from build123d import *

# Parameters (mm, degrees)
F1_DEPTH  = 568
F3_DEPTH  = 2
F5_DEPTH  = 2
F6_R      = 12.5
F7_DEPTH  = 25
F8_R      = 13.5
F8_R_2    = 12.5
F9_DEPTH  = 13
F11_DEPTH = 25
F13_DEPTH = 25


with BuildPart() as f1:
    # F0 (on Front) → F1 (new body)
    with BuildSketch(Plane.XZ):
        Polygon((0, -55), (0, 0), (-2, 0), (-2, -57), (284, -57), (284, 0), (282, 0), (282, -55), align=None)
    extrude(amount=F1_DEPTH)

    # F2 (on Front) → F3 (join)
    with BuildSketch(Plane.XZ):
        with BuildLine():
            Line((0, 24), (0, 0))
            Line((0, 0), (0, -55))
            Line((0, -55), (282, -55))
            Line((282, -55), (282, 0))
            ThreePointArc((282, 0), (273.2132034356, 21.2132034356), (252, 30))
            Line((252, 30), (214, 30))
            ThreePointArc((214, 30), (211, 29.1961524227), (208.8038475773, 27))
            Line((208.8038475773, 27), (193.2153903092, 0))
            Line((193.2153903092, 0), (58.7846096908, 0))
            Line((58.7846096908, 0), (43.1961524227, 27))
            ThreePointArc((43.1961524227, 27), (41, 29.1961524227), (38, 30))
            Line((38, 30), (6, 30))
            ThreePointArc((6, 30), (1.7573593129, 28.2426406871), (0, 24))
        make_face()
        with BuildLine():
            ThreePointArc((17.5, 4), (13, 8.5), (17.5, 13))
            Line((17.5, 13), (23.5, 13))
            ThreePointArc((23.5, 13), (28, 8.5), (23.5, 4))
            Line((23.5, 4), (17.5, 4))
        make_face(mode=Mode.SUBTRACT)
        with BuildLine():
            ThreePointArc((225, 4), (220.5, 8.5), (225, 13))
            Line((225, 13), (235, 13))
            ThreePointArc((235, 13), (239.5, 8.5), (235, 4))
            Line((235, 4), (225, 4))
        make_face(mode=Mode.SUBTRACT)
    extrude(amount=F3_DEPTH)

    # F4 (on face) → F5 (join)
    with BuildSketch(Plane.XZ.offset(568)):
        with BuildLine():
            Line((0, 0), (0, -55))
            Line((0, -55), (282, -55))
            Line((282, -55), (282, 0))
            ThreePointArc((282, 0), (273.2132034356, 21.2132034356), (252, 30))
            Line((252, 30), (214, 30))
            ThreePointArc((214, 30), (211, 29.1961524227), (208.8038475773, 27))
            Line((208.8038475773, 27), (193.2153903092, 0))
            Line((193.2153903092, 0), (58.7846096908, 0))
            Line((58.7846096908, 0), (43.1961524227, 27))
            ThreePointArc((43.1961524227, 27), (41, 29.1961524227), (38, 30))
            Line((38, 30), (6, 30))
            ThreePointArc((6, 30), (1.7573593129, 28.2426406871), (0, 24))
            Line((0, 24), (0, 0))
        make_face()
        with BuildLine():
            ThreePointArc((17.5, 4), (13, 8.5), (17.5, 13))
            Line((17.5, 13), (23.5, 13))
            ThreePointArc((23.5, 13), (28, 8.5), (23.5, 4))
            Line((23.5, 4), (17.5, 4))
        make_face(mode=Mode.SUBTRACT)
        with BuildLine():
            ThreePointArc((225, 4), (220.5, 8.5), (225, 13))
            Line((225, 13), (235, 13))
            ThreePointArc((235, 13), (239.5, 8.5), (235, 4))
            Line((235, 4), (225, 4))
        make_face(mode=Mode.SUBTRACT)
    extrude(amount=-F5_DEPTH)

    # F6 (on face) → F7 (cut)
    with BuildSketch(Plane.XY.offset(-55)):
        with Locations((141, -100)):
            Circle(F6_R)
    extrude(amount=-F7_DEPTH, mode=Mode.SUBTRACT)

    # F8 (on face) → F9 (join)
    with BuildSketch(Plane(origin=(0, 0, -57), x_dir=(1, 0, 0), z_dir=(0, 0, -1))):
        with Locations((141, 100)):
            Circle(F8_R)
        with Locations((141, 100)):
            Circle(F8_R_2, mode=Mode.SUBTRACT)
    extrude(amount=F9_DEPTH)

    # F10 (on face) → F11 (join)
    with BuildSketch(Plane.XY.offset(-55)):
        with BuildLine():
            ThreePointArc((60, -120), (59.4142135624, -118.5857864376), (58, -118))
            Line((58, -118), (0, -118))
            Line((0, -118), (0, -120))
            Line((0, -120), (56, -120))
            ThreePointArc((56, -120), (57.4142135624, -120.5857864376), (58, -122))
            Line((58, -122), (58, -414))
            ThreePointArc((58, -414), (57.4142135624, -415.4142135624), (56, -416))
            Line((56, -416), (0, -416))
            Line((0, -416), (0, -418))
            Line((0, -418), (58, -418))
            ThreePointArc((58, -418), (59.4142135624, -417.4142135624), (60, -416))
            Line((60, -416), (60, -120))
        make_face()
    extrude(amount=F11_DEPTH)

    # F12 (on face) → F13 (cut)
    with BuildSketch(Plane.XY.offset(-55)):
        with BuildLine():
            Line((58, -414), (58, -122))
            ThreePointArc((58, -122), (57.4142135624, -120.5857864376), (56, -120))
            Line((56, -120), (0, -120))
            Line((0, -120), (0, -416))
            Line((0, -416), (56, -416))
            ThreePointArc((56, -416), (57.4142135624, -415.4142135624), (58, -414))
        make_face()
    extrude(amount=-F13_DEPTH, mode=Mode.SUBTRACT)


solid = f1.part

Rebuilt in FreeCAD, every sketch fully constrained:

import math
import FreeCAD as App
import Part
import Sketcher
from FreeCAD import Vector
Q = App.Units.Quantity

doc = App.newDocument("Part")
body = doc.addObject("PartDesign::Body", "Body")

# Sketch on XZ plane
sketch1 = body.newObject("Sketcher::SketchObject", "Sketch")
sketch1.AttachmentSupport = (doc.getObject("XZ_Plane"), [""])
sketch1.MapMode = "FlatFace"
sketch1.addGeometry(Part.LineSegment(Vector(0, -55, 0), Vector(0, 0, 0)), False)
sketch1.addGeometry(Part.LineSegment(Vector(0, 0, 0), Vector(-2, 0, 0)), False)
sketch1.addGeometry(Part.LineSegment(Vector(-2, 0, 0), Vector(-2, -57, 0)), False)
sketch1.addGeometry(Part.LineSegment(Vector(-2, -57, 0), Vector(284, -57, 0)), False)
sketch1.addGeometry(Part.LineSegment(Vector(284, -57, 0), Vector(284, 0, 0)), False)
sketch1.addGeometry(Part.LineSegment(Vector(284, 0, 0), Vector(282, 0, 0)), False)
sketch1.addGeometry(Part.LineSegment(Vector(282, 0, 0), Vector(282, -55, 0)), False)
sketch1.addGeometry(Part.LineSegment(Vector(282, -55, 0), Vector(0, -55, 0)), False)
sketch1.addConstraint(Sketcher.Constraint("Coincident", 0, 2, 1, 1))
sketch1.addConstraint(Sketcher.Constraint("Coincident", 1, 2, 2, 1))
sketch1.addConstraint(Sketcher.Constraint("Coincident", 2, 2, 3, 1))
sketch1.addConstraint(Sketcher.Constraint("Coincident", 3, 2, 4, 1))
sketch1.addConstraint(Sketcher.Constraint("Coincident", 4, 2, 5, 1))
sketch1.addConstraint(Sketcher.Constraint("Coincident", 5, 2, 6, 1))
sketch1.addConstraint(Sketcher.Constraint("Coincident", 6, 2, 7, 1))
sketch1.addConstraint(Sketcher.Constraint("Coincident", 7, 2, 0, 1))
sketch1.addConstraint(Sketcher.Constraint("Vertical", 0))
sketch1.addConstraint(Sketcher.Constraint("Horizontal", 1))
sketch1.addConstraint(Sketcher.Constraint("Vertical", 2))
sketch1.addConstraint(Sketcher.Constraint("Horizontal", 3))
sketch1.addConstraint(Sketcher.Constraint("Vertical", 4))
sketch1.addConstraint(Sketcher.Constraint("Horizontal", 5))
sketch1.addConstraint(Sketcher.Constraint("Vertical", 6))
sketch1.addConstraint(Sketcher.Constraint("Horizontal", 7))
sketch1.addConstraint(Sketcher.Constraint("Coincident", 0, 2, -1, 1))
sketch1.addConstraint(Sketcher.Constraint("PointOnObject", 4, 2, -1))
sketch1.addConstraint(Sketcher.Constraint("Equal", 1, 5))
sketch1.addConstraint(Sketcher.Constraint("DistanceX", 1, 2, 1, 1, 2.0))
sketch1.addConstraint(Sketcher.Constraint("DistanceX", 3, 1, 3, 2, 286.0))
sketch1.addConstraint(Sketcher.Constraint("DistanceY", 0, 1, 0, 2, 55.0))
sketch1.addConstraint(Sketcher.Constraint("DistanceY", 2, 2, 2, 1, 57.0))
pad1 = body.newObject("PartDesign::Pad", "Pad")
pad1.Profile = sketch1
pad1.Length = 568

# Sketch on XZ plane
sketch2 = body.newObject("Sketcher::SketchObject", "Sketch001")
sketch2.AttachmentSupport = (doc.getObject("XZ_Plane"), [""])
sketch2.MapMode = "FlatFace"
sketch2.addGeometry(Part.LineSegment(Vector(0, 24, 0), Vector(0, -55, 0)), False)
sketch2.addGeometry(Part.LineSegment(Vector(0, -55, 0), Vector(282, -55, 0)), False)
sketch2.addGeometry(Part.LineSegment(Vector(282, -55, 0), Vector(282, 0, 0)), False)
sketch2.addGeometry(Part.ArcOfCircle(Part.Circle(Vector(252, 0, 0), Vector(0, 0, 1), 30), math.radians(0), math.radians(90)), False)
sketch2.addGeometry(Part.LineSegment(Vector(252, 30, 0), Vector(214, 30, 0)), False)
sketch2.addGeometry(Part.ArcOfCircle(Part.Circle(Vector(214, 24, 0), Vector(0, 0, 1), 6), math.radians(90), math.radians(150)), False)
sketch2.addGeometry(Part.LineSegment(Vector(208.8, 27, 0), Vector(193.2, 0, 0)), False)
sketch2.addGeometry(Part.LineSegment(Vector(193.2, 0, 0), Vector(58.8, 0, 0)), False)
sketch2.addGeometry(Part.LineSegment(Vector(58.8, 0, 0), Vector(43.2, 27, 0)), False)
sketch2.addGeometry(Part.ArcOfCircle(Part.Circle(Vector(38, 24, 0), Vector(0, 0, 1), 6), math.radians(30), math.radians(90)), False)
sketch2.addGeometry(Part.LineSegment(Vector(38, 30, 0), Vector(6, 30, 0)), False)
sketch2.addGeometry(Part.ArcOfCircle(Part.Circle(Vector(6, 24, 0), Vector(0, 0, 1), 6), math.radians(90), math.radians(180)), False)
sketch2.addGeometry(Part.LineSegment(Vector(23.5, 4, 0), Vector(17.5, 4, 0)), False)
sketch2.addGeometry(Part.ArcOfCircle(Part.Circle(Vector(17.5, 8.5, 0), Vector(0, 0, 1), 4.5), math.radians(90), math.radians(270)), False)
sketch2.addGeometry(Part.LineSegment(Vector(17.5, 13, 0), Vector(23.5, 13, 0)), False)
sketch2.addGeometry(Part.ArcOfCircle(Part.Circle(Vector(23.5, 8.5, 0), Vector(0, 0, 1), 4.5), math.radians(-90), math.radians(90)), False)
sketch2.addGeometry(Part.LineSegment(Vector(235, 4, 0), Vector(225, 4, 0)), False)
sketch2.addGeometry(Part.ArcOfCircle(Part.Circle(Vector(225, 8.5, 0), Vector(0, 0, 1), 4.5), math.radians(90), math.radians(270)), False)
sketch2.addGeometry(Part.LineSegment(Vector(225, 13, 0), Vector(235, 13, 0)), False)
sketch2.addGeometry(Part.ArcOfCircle(Part.Circle(Vector(235, 8.5, 0), Vector(0, 0, 1), 4.5), math.radians(-90), math.radians(90)), False)
sketch2.addConstraint(Sketcher.Constraint("Coincident", 0, 2, 1, 1))
sketch2.addConstraint(Sketcher.Constraint("Coincident", 1, 2, 2, 1))
sketch2.addConstraint(Sketcher.Constraint("Tangent", 2, 2, 3, 1))
sketch2.addConstraint(Sketcher.Constraint("Tangent", 3, 2, 4, 1))
sketch2.addConstraint(Sketcher.Constraint("Tangent", 4, 2, 5, 1))
sketch2.addConstraint(Sketcher.Constraint("Tangent", 5, 2, 6, 1))
sketch2.addConstraint(Sketcher.Constraint("Coincident", 6, 2, 7, 1))
sketch2.addConstraint(Sketcher.Constraint("Coincident", 7, 2, 8, 1))
sketch2.addConstraint(Sketcher.Constraint("Tangent", 8, 2, 9, 1))
sketch2.addConstraint(Sketcher.Constraint("Tangent", 9, 2, 10, 1))
sketch2.addConstraint(Sketcher.Constraint("Tangent", 10, 2, 11, 1))
sketch2.addConstraint(Sketcher.Constraint("Tangent", 11, 2, 0, 1))
sketch2.addConstraint(Sketcher.Constraint("Tangent", 12, 2, 13, 2))
sketch2.addConstraint(Sketcher.Constraint("Tangent", 13, 1, 14, 1))
sketch2.addConstraint(Sketcher.Constraint("Tangent", 14, 2, 15, 2))
sketch2.addConstraint(Sketcher.Constraint("Tangent", 15, 1, 12, 1))
sketch2.addConstraint(Sketcher.Constraint("Tangent", 16, 2, 17, 2))
sketch2.addConstraint(Sketcher.Constraint("Tangent", 17, 1, 18, 1))
sketch2.addConstraint(Sketcher.Constraint("Tangent", 18, 2, 19, 2))
sketch2.addConstraint(Sketcher.Constraint("Tangent", 19, 1, 16, 1))
sketch2.addConstraint(Sketcher.Constraint("Vertical", 0))
sketch2.addConstraint(Sketcher.Constraint("Horizontal", 1))
sketch2.addConstraint(Sketcher.Constraint("Vertical", 2))
sketch2.addConstraint(Sketcher.Constraint("Horizontal", 4))
sketch2.addConstraint(Sketcher.Constraint("Horizontal", 7))
sketch2.addConstraint(Sketcher.Constraint("Horizontal", 10))
sketch2.addConstraint(Sketcher.Constraint("Horizontal", 12))
sketch2.addConstraint(Sketcher.Constraint("Horizontal", 14))
sketch2.addConstraint(Sketcher.Constraint("Horizontal", 16))
sketch2.addConstraint(Sketcher.Constraint("Horizontal", 18))
sketch2.addConstraint(Sketcher.Constraint("Equal", 5, 9))
sketch2.addConstraint(Sketcher.Constraint("Equal", 9, 11))
sketch2.addConstraint(Sketcher.Constraint("Equal", 15, 17))
sketch2.addConstraint(Sketcher.Constraint("PointOnObject", 3, 3, -1))
sketch2.addConstraint(Sketcher.Constraint("PointOnObject", 0, 2, -2))
sketch2.addConstraint(Sketcher.Constraint("PointOnObject", 6, 2, -1))
sketch2.addConstraint(Sketcher.Constraint("Horizontal", 5, 3, 9, 3))
sketch2.addConstraint(Sketcher.Constraint("Horizontal", 15, 3, 17, 3))
sketch2.addConstraint(Sketcher.Constraint("Horizontal", 5, 2, 8, 2))
sketch2.addConstraint(Sketcher.Constraint("Radius", 3, 30.0))
sketch2.addConstraint(Sketcher.Constraint("Radius", 5, 6.0))
sketch2.addConstraint(Sketcher.Constraint("Radius", 13, 4.5))
sketch2.addConstraint(Sketcher.Constraint("DistanceX", 1, 1, 1, 2, 282.0))
sketch2.addConstraint(Sketcher.Constraint("DistanceX", 4, 2, 4, 1, 38.0))
sketch2.addConstraint(Sketcher.Constraint("DistanceX", 10, 2, 10, 1, 32.0))
sketch2.addConstraint(Sketcher.Constraint("DistanceX", 12, 2, 12, 1, 6.0))
sketch2.addConstraint(Sketcher.Constraint("DistanceX", 16, 2, 16, 1, 10.0))
sketch2.addConstraint(Sketcher.Constraint("DistanceY", 0, 2, 0, 1, 79.0))
sketch2.addConstraint(Sketcher.Constraint("Angle", 6, Q("-120 deg")))
sketch2.addConstraint(Sketcher.Constraint("DistanceX", -1, 1, 17, 3, 225.0))
sketch2.addConstraint(Sketcher.Constraint("DistanceY", -1, 1, 12, 2, 4.0))
sketch2.addConstraint(Sketcher.Constraint("DistanceX", -1, 1, 13, 3, 17.5))
pad2 = body.newObject("PartDesign::Pad", "Pad001")
pad2.Profile = sketch2
pad2.Length = 2

# Sketch on XZ plane
sketch3 = body.newObject("Sketcher::SketchObject", "Sketch002")
sketch3.AttachmentSupport = (doc.getObject("XZ_Plane"), [""])
sketch3.MapMode = "FlatFace"
sketch3.AttachmentOffset = App.Placement(Vector(0, 0, 568), App.Rotation())
sketch3.addGeometry(Part.LineSegment(Vector(0, -55, 0), Vector(282, -55, 0)), False)
sketch3.addGeometry(Part.LineSegment(Vector(282, -55, 0), Vector(282, 0, 0)), False)
sketch3.addGeometry(Part.ArcOfCircle(Part.Circle(Vector(252, 0, 0), Vector(0, 0, 1), 30), math.radians(0), math.radians(90)), False)
sketch3.addGeometry(Part.LineSegment(Vector(252, 30, 0), Vector(214, 30, 0)), False)
sketch3.addGeometry(Part.ArcOfCircle(Part.Circle(Vector(214, 24, 0), Vector(0, 0, 1), 6), math.radians(90), math.radians(150)), False)
sketch3.addGeometry(Part.LineSegment(Vector(208.8, 27, 0), Vector(193.2, 0, 0)), False)
sketch3.addGeometry(Part.LineSegment(Vector(193.2, 0, 0), Vector(58.8, 0, 0)), False)
sketch3.addGeometry(Part.LineSegment(Vector(58.8, 0, 0), Vector(43.2, 27, 0)), False)
sketch3.addGeometry(Part.ArcOfCircle(Part.Circle(Vector(38, 24, 0), Vector(0, 0, 1), 6), math.radians(30), math.radians(90)), False)
sketch3.addGeometry(Part.LineSegment(Vector(38, 30, 0), Vector(6, 30, 0)), False)
sketch3.addGeometry(Part.ArcOfCircle(Part.Circle(Vector(6, 24, 0), Vector(0, 0, 1), 6), math.radians(90), math.radians(180)), False)
sketch3.addGeometry(Part.LineSegment(Vector(0, 24, 0), Vector(0, -55, 0)), False)
sketch3.addGeometry(Part.LineSegment(Vector(23.5, 4, 0), Vector(17.5, 4, 0)), False)
sketch3.addGeometry(Part.ArcOfCircle(Part.Circle(Vector(17.5, 8.5, 0), Vector(0, 0, 1), 4.5), math.radians(90), math.radians(270)), False)
sketch3.addGeometry(Part.LineSegment(Vector(17.5, 13, 0), Vector(23.5, 13, 0)), False)
sketch3.addGeometry(Part.ArcOfCircle(Part.Circle(Vector(23.5, 8.5, 0), Vector(0, 0, 1), 4.5), math.radians(-90), math.radians(90)), False)
sketch3.addGeometry(Part.LineSegment(Vector(235, 4, 0), Vector(225, 4, 0)), False)
sketch3.addGeometry(Part.ArcOfCircle(Part.Circle(Vector(225, 8.5, 0), Vector(0, 0, 1), 4.5), math.radians(90), math.radians(270)), False)
sketch3.addGeometry(Part.LineSegment(Vector(225, 13, 0), Vector(235, 13, 0)), False)
sketch3.addGeometry(Part.ArcOfCircle(Part.Circle(Vector(235, 8.5, 0), Vector(0, 0, 1), 4.5), math.radians(-90), math.radians(90)), False)
sketch3.addConstraint(Sketcher.Constraint("Coincident", 0, 2, 1, 1))
sketch3.addConstraint(Sketcher.Constraint("Tangent", 1, 2, 2, 1))
sketch3.addConstraint(Sketcher.Constraint("Tangent", 2, 2, 3, 1))
sketch3.addConstraint(Sketcher.Constraint("Tangent", 3, 2, 4, 1))
sketch3.addConstraint(Sketcher.Constraint("Tangent", 4, 2, 5, 1))
sketch3.addConstraint(Sketcher.Constraint("Coincident", 5, 2, 6, 1))
sketch3.addConstraint(Sketcher.Constraint("Coincident", 6, 2, 7, 1))
sketch3.addConstraint(Sketcher.Constraint("Tangent", 7, 2, 8, 1))
sketch3.addConstraint(Sketcher.Constraint("Tangent", 8, 2, 9, 1))
sketch3.addConstraint(Sketcher.Constraint("Tangent", 9, 2, 10, 1))
sketch3.addConstraint(Sketcher.Constraint("Tangent", 10, 2, 11, 1))
sketch3.addConstraint(Sketcher.Constraint("Coincident", 11, 2, 0, 1))
sketch3.addConstraint(Sketcher.Constraint("Tangent", 12, 2, 13, 2))
sketch3.addConstraint(Sketcher.Constraint("Tangent", 13, 1, 14, 1))
sketch3.addConstraint(Sketcher.Constraint("Tangent", 14, 2, 15, 2))
sketch3.addConstraint(Sketcher.Constraint("Tangent", 15, 1, 12, 1))
sketch3.addConstraint(Sketcher.Constraint("Tangent", 16, 2, 17, 2))
sketch3.addConstraint(Sketcher.Constraint("Tangent", 17, 1, 18, 1))
sketch3.addConstraint(Sketcher.Constraint("Tangent", 18, 2, 19, 2))
sketch3.addConstraint(Sketcher.Constraint("Tangent", 19, 1, 16, 1))
sketch3.addConstraint(Sketcher.Constraint("Horizontal", 0))
sketch3.addConstraint(Sketcher.Constraint("Vertical", 1))
sketch3.addConstraint(Sketcher.Constraint("Horizontal", 3))
sketch3.addConstraint(Sketcher.Constraint("Horizontal", 6))
sketch3.addConstraint(Sketcher.Constraint("Horizontal", 9))
sketch3.addConstraint(Sketcher.Constraint("Vertical", 11))
sketch3.addConstraint(Sketcher.Constraint("Horizontal", 12))
sketch3.addConstraint(Sketcher.Constraint("Horizontal", 14))
sketch3.addConstraint(Sketcher.Constraint("Horizontal", 16))
sketch3.addConstraint(Sketcher.Constraint("Horizontal", 18))
sketch3.addConstraint(Sketcher.Constraint("Equal", 4, 8))
sketch3.addConstraint(Sketcher.Constraint("Equal", 8, 10))
sketch3.addConstraint(Sketcher.Constraint("Equal", 15, 17))
sketch3.addConstraint(Sketcher.Constraint("PointOnObject", 2, 3, -1))
sketch3.addConstraint(Sketcher.Constraint("PointOnObject", 5, 2, -1))
sketch3.addConstraint(Sketcher.Constraint("PointOnObject", 10, 2, -2))
sketch3.addConstraint(Sketcher.Constraint("Horizontal", 4, 3, 8, 3))
sketch3.addConstraint(Sketcher.Constraint("Horizontal", 15, 3, 17, 3))
sketch3.addConstraint(Sketcher.Constraint("Horizontal", 4, 2, 7, 2))
sketch3.addConstraint(Sketcher.Constraint("Radius", 2, 30.0))
sketch3.addConstraint(Sketcher.Constraint("Radius", 4, 6.0))
sketch3.addConstraint(Sketcher.Constraint("Radius", 13, 4.5))
sketch3.addConstraint(Sketcher.Constraint("DistanceX", 0, 1, 0, 2, 282.0))
sketch3.addConstraint(Sketcher.Constraint("DistanceX", 3, 2, 3, 1, 38.0))
sketch3.addConstraint(Sketcher.Constraint("DistanceX", 9, 2, 9, 1, 32.0))
sketch3.addConstraint(Sketcher.Constraint("DistanceX", 12, 2, 12, 1, 6.0))
sketch3.addConstraint(Sketcher.Constraint("DistanceX", 16, 2, 16, 1, 10.0))
sketch3.addConstraint(Sketcher.Constraint("DistanceY", 1, 1, 1, 2, 55.0))
sketch3.addConstraint(Sketcher.Constraint("Angle", 5, Q("-120 deg")))
sketch3.addConstraint(Sketcher.Constraint("DistanceX", -1, 1, 17, 3, 225.0))
sketch3.addConstraint(Sketcher.Constraint("DistanceY", -1, 1, 12, 2, 4.0))
sketch3.addConstraint(Sketcher.Constraint("DistanceX", -1, 1, 13, 3, 17.5))
pad3 = body.newObject("PartDesign::Pad", "Pad002")
pad3.Profile = sketch3
pad3.Length = 2
pad3.Reversed = True

# Sketch on XY plane
sketch4 = body.newObject("Sketcher::SketchObject", "Sketch003")
sketch4.AttachmentSupport = (doc.getObject("XY_Plane"), [""])
sketch4.MapMode = "FlatFace"
sketch4.AttachmentOffset = App.Placement(Vector(0, 0, -55), App.Rotation())
sketch4.addGeometry(Part.Circle(Vector(141, -100, 0), Vector(0, 0, 1), 12), False)
sketch4.addConstraint(Sketcher.Constraint("Diameter", 0, 25.0))
sketch4.addConstraint(Sketcher.Constraint("DistanceX", -1, 1, 0, 3, 141.0))
sketch4.addConstraint(Sketcher.Constraint("DistanceY", 0, 3, -1, 1, 100.0))
pocket1 = body.newObject("PartDesign::Pocket", "Pocket")
pocket1.Profile = sketch4
pocket1.Length = 25

# Sketch on XY plane
sketch5 = body.newObject("Sketcher::SketchObject", "Sketch004")
sketch5.AttachmentSupport = (doc.getObject("XY_Plane"), [""])
sketch5.MapMode = "FlatFace"
sketch5.AttachmentOffset = App.Placement(Vector(0, 0, -57), App.Rotation())
sketch5.addGeometry(Part.Circle(Vector(141, -100, 0), Vector(0, 0, 1), 14), False)
sketch5.addGeometry(Part.Circle(Vector(141, -100, 0), Vector(0, 0, 1), 12), False)
sketch5.addConstraint(Sketcher.Constraint("Coincident", 1, 3, 0, 3))
sketch5.addConstraint(Sketcher.Constraint("Diameter", 0, 27.0))
sketch5.addConstraint(Sketcher.Constraint("Diameter", 1, 25.0))
sketch5.addConstraint(Sketcher.Constraint("DistanceX", -1, 1, 0, 3, 141.0))
sketch5.addConstraint(Sketcher.Constraint("DistanceY", 0, 3, -1, 1, 100.0))
pad4 = body.newObject("PartDesign::Pad", "Pad003")
pad4.Profile = sketch5
pad4.Length = 13
pad4.Reversed = True

# Sketch on XY plane
sketch6 = body.newObject("Sketcher::SketchObject", "Sketch005")
sketch6.AttachmentSupport = (doc.getObject("XY_Plane"), [""])
sketch6.MapMode = "FlatFace"
sketch6.AttachmentOffset = App.Placement(Vector(0, 0, -55), App.Rotation())
sketch6.addGeometry(Part.ArcOfCircle(Part.Circle(Vector(58, -120, 0), Vector(0, 0, 1), 2), math.radians(0), math.radians(90)), False)
sketch6.addGeometry(Part.LineSegment(Vector(58, -118, 0), Vector(0, -118, 0)), False)
sketch6.addGeometry(Part.LineSegment(Vector(0, -118, 0), Vector(0, -120, 0)), False)
sketch6.addGeometry(Part.LineSegment(Vector(0, -120, 0), Vector(56, -120, 0)), False)
sketch6.addGeometry(Part.ArcOfCircle(Part.Circle(Vector(56, -122, 0), Vector(0, 0, 1), 2), math.radians(0), math.radians(90)), False)
sketch6.addGeometry(Part.LineSegment(Vector(58, -122, 0), Vector(58, -414, 0)), False)
sketch6.addGeometry(Part.ArcOfCircle(Part.Circle(Vector(56, -414, 0), Vector(0, 0, 1), 2), math.radians(-90), math.radians(0)), False)
sketch6.addGeometry(Part.LineSegment(Vector(56, -416, 0), Vector(0, -416, 0)), False)
sketch6.addGeometry(Part.LineSegment(Vector(0, -416, 0), Vector(0, -418, 0)), False)
sketch6.addGeometry(Part.LineSegment(Vector(0, -418, 0), Vector(58, -418, 0)), False)
sketch6.addGeometry(Part.ArcOfCircle(Part.Circle(Vector(58, -416, 0), Vector(0, 0, 1), 2), math.radians(-90), math.radians(0)), False)
sketch6.addGeometry(Part.LineSegment(Vector(60, -416, 0), Vector(60, -120, 0)), False)
sketch6.addConstraint(Sketcher.Constraint("Tangent", 0, 2, 1, 1))
sketch6.addConstraint(Sketcher.Constraint("Coincident", 1, 2, 2, 1))
sketch6.addConstraint(Sketcher.Constraint("Coincident", 2, 2, 3, 1))
sketch6.addConstraint(Sketcher.Constraint("Tangent", 3, 2, 4, 2))
sketch6.addConstraint(Sketcher.Constraint("Tangent", 4, 1, 5, 1))
sketch6.addConstraint(Sketcher.Constraint("Tangent", 5, 2, 6, 2))
sketch6.addConstraint(Sketcher.Constraint("Tangent", 6, 1, 7, 1))
sketch6.addConstraint(Sketcher.Constraint("Coincident", 7, 2, 8, 1))
sketch6.addConstraint(Sketcher.Constraint("Coincident", 8, 2, 9, 1))
sketch6.addConstraint(Sketcher.Constraint("Tangent", 9, 2, 10, 1))
sketch6.addConstraint(Sketcher.Constraint("Tangent", 10, 2, 11, 1))
sketch6.addConstraint(Sketcher.Constraint("Tangent", 11, 2, 0, 1))
sketch6.addConstraint(Sketcher.Constraint("Horizontal", 1))
sketch6.addConstraint(Sketcher.Constraint("Vertical", 2))
sketch6.addConstraint(Sketcher.Constraint("Horizontal", 3))
sketch6.addConstraint(Sketcher.Constraint("Vertical", 5))
sketch6.addConstraint(Sketcher.Constraint("Horizontal", 7))
sketch6.addConstraint(Sketcher.Constraint("Vertical", 8))
sketch6.addConstraint(Sketcher.Constraint("Horizontal", 9))
sketch6.addConstraint(Sketcher.Constraint("Vertical", 11))
sketch6.addConstraint(Sketcher.Constraint("Equal", 0, 4))
sketch6.addConstraint(Sketcher.Constraint("Equal", 4, 6))
sketch6.addConstraint(Sketcher.Constraint("Equal", 6, 10))
sketch6.addConstraint(Sketcher.Constraint("PointOnObject", 1, 2, -2))
sketch6.addConstraint(Sketcher.Constraint("PointOnObject", 7, 2, -2))
sketch6.addConstraint(Sketcher.Constraint("Horizontal", 0, 3, 2, 2))
sketch6.addConstraint(Sketcher.Constraint("Horizontal", 10, 3, 6, 1))
sketch6.addConstraint(Sketcher.Constraint("Vertical", 0, 2, 4, 1))
sketch6.addConstraint(Sketcher.Constraint("Radius", 0, 2.0))
sketch6.addConstraint(Sketcher.Constraint("DistanceX", 1, 2, 1, 1, 58.0))
sketch6.addConstraint(Sketcher.Constraint("DistanceY", 5, 2, 5, 1, 292.0))
sketch6.addConstraint(Sketcher.Constraint("DistanceY", 0, 3, -1, 1, 120.0))
pad5 = body.newObject("PartDesign::Pad", "Pad004")
pad5.Profile = sketch6
pad5.Length = 25

# Sketch on XY plane
sketch7 = body.newObject("Sketcher::SketchObject", "Sketch006")
sketch7.AttachmentSupport = (doc.getObject("XY_Plane"), [""])
sketch7.MapMode = "FlatFace"
sketch7.AttachmentOffset = App.Placement(Vector(0, 0, -55), App.Rotation())
sketch7.addGeometry(Part.LineSegment(Vector(58, -414, 0), Vector(58, -122, 0)), False)
sketch7.addGeometry(Part.ArcOfCircle(Part.Circle(Vector(56, -122, 0), Vector(0, 0, 1), 2), math.radians(0), math.radians(90)), False)
sketch7.addGeometry(Part.LineSegment(Vector(56, -120, 0), Vector(0, -120, 0)), False)
sketch7.addGeometry(Part.LineSegment(Vector(0, -120, 0), Vector(0, -416, 0)), False)
sketch7.addGeometry(Part.LineSegment(Vector(0, -416, 0), Vector(56, -416, 0)), False)
sketch7.addGeometry(Part.ArcOfCircle(Part.Circle(Vector(56, -414, 0), Vector(0, 0, 1), 2), math.radians(-90), math.radians(0)), False)
sketch7.addConstraint(Sketcher.Constraint("Tangent", 0, 2, 1, 1))
sketch7.addConstraint(Sketcher.Constraint("Tangent", 1, 2, 2, 1))
sketch7.addConstraint(Sketcher.Constraint("Coincident", 2, 2, 3, 1))
sketch7.addConstraint(Sketcher.Constraint("Coincident", 3, 2, 4, 1))
sketch7.addConstraint(Sketcher.Constraint("Tangent", 4, 2, 5, 1))
sketch7.addConstraint(Sketcher.Constraint("Tangent", 5, 2, 0, 1))
sketch7.addConstraint(Sketcher.Constraint("Vertical", 0))
sketch7.addConstraint(Sketcher.Constraint("Horizontal", 2))
sketch7.addConstraint(Sketcher.Constraint("Vertical", 3))
sketch7.addConstraint(Sketcher.Constraint("Horizontal", 4))
sketch7.addConstraint(Sketcher.Constraint("Equal", 1, 5))
sketch7.addConstraint(Sketcher.Constraint("PointOnObject", 2, 2, -2))
sketch7.addConstraint(Sketcher.Constraint("Radius", 1, 2.0))
sketch7.addConstraint(Sketcher.Constraint("DistanceX", 2, 2, 2, 1, 56.0))
sketch7.addConstraint(Sketcher.Constraint("DistanceY", 0, 1, 0, 2, 292.0))
sketch7.addConstraint(Sketcher.Constraint("DistanceY", 1, 3, -1, 1, 122.0))
pocket2 = body.newObject("PartDesign::Pocket", "Pocket001")
pocket2.Profile = sketch7
pocket2.Length = 25

doc.recompute()
